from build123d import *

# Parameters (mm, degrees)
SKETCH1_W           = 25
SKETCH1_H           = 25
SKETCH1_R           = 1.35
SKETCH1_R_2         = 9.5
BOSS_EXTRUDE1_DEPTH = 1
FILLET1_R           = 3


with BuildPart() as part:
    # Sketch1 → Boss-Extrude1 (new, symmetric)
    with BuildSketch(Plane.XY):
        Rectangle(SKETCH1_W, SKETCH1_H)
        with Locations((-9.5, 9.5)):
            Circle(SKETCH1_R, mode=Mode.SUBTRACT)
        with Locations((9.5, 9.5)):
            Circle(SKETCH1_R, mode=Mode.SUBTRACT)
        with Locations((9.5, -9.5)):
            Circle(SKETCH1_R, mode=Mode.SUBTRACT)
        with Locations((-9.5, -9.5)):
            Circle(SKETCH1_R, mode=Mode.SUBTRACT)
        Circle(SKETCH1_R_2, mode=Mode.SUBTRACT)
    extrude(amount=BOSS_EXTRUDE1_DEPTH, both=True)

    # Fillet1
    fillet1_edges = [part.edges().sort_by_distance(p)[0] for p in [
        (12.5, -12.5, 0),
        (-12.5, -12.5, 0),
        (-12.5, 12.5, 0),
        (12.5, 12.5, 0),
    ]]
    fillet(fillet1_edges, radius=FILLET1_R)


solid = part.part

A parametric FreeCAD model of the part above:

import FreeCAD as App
import Part
import Sketcher


def edges_at(feature, points):
    """Names of the edges that pass closest to the given points."""
    edges = feature.Shape.Edges
    near = lambda p: min(range(len(edges)), key=lambda i: edges[i].distToShape(Part.Vertex(*p))[0])
    return sorted({f"Edge{near(p) + 1}" for p in points})


def add_polygon(sketch, points):
    """Adds a closed chain of lines whose ends are joined by coincident constraints."""
    first, n = sketch.GeometryCount, len(points)
    for a, b in zip(points, points[1:] + points[:1]):
        sketch.addGeometry(Part.LineSegment(App.Vector(*a, 0), App.Vector(*b, 0)), False)
    for i in range(n):
        sketch.addConstraint(Sketcher.Constraint("Coincident", first + i, 2, first + (i + 1) % n, 1))

doc = App.newDocument("Part")
body = doc.addObject("PartDesign::Body", "Body")

# Sketch on XY plane
sketch1 = body.newObject("Sketcher::SketchObject", "Sketch")
sketch1.AttachmentSupport = (doc.getObject("XY_Plane"), [""])
sketch1.MapMode = "FlatFace"
add_polygon(sketch1, [(-12.5, 12.5), (-12.5, -12.5), (12.5, -12.5), (12.5, 12.5)])  # lines 0-3
sketch1.addGeometry(Part.Circle(App.Vector(-9.5, -9.5, 0), App.Vector(0, 0, 1), 1.35), False)  # 4
sketch1.addGeometry(Part.Circle(App.Vector(9.5, -9.5, 0), App.Vector(0, 0, 1), 1.35), False)  # 5
sketch1.addGeometry(Part.Circle(App.Vector(-9.5, 9.5, 0), App.Vector(0, 0, 1), 1.35), False)  # 6
sketch1.addGeometry(Part.Circle(App.Vector(0, 0, 0), App.Vector(0, 0, 1), 9.5), False)  # 7
sketch1.addGeometry(Part.Circle(App.Vector(9.5, 9.5, 0), App.Vector(0, 0, 1), 1.35), False)  # 8
sketch1.addConstraint(Sketcher.Constraint("Vertical", 0))
sketch1.addConstraint(Sketcher.Constraint("Horizontal", 1))
sketch1.addConstraint(Sketcher.Constraint("Vertical", 2))
sketch1.addConstraint(Sketcher.Constraint("Horizontal", 3))
sketch1.addConstraint(Sketcher.Constraint("Coincident", 7, 3, -1, 1))
sketch1.addConstraint(Sketcher.Constraint("Equal", 4, 5))
sketch1.addConstraint(Sketcher.Constraint("Equal", 5, 6))
sketch1.addConstraint(Sketcher.Constraint("Equal", 6, 8))
sketch1.addConstraint(Sketcher.Constraint("Symmetric", 5, 3, 6, 3, -1, 1))
sketch1.addConstraint(Sketcher.Constraint("Symmetric", 4, 3, 8, 3, -1, 1))
sketch1.addConstraint(Sketcher.Constraint("Symmetric", 0, 2, 2, 2, -1, 1))
sketch1.addConstraint(Sketcher.Constraint("Symmetric", 4, 3, 5, 3, -2))
sketch1.addConstraint(Sketcher.Constraint("Equal", 3, 0))
sketch1.addConstraint(Sketcher.Constraint("Diameter", 7, 19.0))
sketch1.addConstraint(Sketcher.Constraint("Diameter", 4, 2.7))
sketch1.addConstraint(Sketcher.Constraint("DistanceX", 1, 1, 1, 2, 25.0))
sketch1.addConstraint(Sketcher.Constraint("DistanceX", 4, 3, 5, 3, 19.0))
sketch1.addConstraint(Sketcher.Constraint("DistanceY", 4, 3, 6, 3, 19.0))
pad1 = body.newObject("PartDesign::Pad", "Pad")
pad1.Profile = sketch1
pad1.Length = 2
pad1.Midplane = True
doc.recompute()

fillet = body.newObject("PartDesign::Fillet", "Fillet")
fillet.Base = (pad1, edges_at(pad1, [
    (12.5, -12.5, 0),
    (-12.5, -12.5, 0),
    (-12.5, 12.5, 0),
    (12.5, 12.5, 0),
]))
fillet.Radius = 3

doc.recompute()
